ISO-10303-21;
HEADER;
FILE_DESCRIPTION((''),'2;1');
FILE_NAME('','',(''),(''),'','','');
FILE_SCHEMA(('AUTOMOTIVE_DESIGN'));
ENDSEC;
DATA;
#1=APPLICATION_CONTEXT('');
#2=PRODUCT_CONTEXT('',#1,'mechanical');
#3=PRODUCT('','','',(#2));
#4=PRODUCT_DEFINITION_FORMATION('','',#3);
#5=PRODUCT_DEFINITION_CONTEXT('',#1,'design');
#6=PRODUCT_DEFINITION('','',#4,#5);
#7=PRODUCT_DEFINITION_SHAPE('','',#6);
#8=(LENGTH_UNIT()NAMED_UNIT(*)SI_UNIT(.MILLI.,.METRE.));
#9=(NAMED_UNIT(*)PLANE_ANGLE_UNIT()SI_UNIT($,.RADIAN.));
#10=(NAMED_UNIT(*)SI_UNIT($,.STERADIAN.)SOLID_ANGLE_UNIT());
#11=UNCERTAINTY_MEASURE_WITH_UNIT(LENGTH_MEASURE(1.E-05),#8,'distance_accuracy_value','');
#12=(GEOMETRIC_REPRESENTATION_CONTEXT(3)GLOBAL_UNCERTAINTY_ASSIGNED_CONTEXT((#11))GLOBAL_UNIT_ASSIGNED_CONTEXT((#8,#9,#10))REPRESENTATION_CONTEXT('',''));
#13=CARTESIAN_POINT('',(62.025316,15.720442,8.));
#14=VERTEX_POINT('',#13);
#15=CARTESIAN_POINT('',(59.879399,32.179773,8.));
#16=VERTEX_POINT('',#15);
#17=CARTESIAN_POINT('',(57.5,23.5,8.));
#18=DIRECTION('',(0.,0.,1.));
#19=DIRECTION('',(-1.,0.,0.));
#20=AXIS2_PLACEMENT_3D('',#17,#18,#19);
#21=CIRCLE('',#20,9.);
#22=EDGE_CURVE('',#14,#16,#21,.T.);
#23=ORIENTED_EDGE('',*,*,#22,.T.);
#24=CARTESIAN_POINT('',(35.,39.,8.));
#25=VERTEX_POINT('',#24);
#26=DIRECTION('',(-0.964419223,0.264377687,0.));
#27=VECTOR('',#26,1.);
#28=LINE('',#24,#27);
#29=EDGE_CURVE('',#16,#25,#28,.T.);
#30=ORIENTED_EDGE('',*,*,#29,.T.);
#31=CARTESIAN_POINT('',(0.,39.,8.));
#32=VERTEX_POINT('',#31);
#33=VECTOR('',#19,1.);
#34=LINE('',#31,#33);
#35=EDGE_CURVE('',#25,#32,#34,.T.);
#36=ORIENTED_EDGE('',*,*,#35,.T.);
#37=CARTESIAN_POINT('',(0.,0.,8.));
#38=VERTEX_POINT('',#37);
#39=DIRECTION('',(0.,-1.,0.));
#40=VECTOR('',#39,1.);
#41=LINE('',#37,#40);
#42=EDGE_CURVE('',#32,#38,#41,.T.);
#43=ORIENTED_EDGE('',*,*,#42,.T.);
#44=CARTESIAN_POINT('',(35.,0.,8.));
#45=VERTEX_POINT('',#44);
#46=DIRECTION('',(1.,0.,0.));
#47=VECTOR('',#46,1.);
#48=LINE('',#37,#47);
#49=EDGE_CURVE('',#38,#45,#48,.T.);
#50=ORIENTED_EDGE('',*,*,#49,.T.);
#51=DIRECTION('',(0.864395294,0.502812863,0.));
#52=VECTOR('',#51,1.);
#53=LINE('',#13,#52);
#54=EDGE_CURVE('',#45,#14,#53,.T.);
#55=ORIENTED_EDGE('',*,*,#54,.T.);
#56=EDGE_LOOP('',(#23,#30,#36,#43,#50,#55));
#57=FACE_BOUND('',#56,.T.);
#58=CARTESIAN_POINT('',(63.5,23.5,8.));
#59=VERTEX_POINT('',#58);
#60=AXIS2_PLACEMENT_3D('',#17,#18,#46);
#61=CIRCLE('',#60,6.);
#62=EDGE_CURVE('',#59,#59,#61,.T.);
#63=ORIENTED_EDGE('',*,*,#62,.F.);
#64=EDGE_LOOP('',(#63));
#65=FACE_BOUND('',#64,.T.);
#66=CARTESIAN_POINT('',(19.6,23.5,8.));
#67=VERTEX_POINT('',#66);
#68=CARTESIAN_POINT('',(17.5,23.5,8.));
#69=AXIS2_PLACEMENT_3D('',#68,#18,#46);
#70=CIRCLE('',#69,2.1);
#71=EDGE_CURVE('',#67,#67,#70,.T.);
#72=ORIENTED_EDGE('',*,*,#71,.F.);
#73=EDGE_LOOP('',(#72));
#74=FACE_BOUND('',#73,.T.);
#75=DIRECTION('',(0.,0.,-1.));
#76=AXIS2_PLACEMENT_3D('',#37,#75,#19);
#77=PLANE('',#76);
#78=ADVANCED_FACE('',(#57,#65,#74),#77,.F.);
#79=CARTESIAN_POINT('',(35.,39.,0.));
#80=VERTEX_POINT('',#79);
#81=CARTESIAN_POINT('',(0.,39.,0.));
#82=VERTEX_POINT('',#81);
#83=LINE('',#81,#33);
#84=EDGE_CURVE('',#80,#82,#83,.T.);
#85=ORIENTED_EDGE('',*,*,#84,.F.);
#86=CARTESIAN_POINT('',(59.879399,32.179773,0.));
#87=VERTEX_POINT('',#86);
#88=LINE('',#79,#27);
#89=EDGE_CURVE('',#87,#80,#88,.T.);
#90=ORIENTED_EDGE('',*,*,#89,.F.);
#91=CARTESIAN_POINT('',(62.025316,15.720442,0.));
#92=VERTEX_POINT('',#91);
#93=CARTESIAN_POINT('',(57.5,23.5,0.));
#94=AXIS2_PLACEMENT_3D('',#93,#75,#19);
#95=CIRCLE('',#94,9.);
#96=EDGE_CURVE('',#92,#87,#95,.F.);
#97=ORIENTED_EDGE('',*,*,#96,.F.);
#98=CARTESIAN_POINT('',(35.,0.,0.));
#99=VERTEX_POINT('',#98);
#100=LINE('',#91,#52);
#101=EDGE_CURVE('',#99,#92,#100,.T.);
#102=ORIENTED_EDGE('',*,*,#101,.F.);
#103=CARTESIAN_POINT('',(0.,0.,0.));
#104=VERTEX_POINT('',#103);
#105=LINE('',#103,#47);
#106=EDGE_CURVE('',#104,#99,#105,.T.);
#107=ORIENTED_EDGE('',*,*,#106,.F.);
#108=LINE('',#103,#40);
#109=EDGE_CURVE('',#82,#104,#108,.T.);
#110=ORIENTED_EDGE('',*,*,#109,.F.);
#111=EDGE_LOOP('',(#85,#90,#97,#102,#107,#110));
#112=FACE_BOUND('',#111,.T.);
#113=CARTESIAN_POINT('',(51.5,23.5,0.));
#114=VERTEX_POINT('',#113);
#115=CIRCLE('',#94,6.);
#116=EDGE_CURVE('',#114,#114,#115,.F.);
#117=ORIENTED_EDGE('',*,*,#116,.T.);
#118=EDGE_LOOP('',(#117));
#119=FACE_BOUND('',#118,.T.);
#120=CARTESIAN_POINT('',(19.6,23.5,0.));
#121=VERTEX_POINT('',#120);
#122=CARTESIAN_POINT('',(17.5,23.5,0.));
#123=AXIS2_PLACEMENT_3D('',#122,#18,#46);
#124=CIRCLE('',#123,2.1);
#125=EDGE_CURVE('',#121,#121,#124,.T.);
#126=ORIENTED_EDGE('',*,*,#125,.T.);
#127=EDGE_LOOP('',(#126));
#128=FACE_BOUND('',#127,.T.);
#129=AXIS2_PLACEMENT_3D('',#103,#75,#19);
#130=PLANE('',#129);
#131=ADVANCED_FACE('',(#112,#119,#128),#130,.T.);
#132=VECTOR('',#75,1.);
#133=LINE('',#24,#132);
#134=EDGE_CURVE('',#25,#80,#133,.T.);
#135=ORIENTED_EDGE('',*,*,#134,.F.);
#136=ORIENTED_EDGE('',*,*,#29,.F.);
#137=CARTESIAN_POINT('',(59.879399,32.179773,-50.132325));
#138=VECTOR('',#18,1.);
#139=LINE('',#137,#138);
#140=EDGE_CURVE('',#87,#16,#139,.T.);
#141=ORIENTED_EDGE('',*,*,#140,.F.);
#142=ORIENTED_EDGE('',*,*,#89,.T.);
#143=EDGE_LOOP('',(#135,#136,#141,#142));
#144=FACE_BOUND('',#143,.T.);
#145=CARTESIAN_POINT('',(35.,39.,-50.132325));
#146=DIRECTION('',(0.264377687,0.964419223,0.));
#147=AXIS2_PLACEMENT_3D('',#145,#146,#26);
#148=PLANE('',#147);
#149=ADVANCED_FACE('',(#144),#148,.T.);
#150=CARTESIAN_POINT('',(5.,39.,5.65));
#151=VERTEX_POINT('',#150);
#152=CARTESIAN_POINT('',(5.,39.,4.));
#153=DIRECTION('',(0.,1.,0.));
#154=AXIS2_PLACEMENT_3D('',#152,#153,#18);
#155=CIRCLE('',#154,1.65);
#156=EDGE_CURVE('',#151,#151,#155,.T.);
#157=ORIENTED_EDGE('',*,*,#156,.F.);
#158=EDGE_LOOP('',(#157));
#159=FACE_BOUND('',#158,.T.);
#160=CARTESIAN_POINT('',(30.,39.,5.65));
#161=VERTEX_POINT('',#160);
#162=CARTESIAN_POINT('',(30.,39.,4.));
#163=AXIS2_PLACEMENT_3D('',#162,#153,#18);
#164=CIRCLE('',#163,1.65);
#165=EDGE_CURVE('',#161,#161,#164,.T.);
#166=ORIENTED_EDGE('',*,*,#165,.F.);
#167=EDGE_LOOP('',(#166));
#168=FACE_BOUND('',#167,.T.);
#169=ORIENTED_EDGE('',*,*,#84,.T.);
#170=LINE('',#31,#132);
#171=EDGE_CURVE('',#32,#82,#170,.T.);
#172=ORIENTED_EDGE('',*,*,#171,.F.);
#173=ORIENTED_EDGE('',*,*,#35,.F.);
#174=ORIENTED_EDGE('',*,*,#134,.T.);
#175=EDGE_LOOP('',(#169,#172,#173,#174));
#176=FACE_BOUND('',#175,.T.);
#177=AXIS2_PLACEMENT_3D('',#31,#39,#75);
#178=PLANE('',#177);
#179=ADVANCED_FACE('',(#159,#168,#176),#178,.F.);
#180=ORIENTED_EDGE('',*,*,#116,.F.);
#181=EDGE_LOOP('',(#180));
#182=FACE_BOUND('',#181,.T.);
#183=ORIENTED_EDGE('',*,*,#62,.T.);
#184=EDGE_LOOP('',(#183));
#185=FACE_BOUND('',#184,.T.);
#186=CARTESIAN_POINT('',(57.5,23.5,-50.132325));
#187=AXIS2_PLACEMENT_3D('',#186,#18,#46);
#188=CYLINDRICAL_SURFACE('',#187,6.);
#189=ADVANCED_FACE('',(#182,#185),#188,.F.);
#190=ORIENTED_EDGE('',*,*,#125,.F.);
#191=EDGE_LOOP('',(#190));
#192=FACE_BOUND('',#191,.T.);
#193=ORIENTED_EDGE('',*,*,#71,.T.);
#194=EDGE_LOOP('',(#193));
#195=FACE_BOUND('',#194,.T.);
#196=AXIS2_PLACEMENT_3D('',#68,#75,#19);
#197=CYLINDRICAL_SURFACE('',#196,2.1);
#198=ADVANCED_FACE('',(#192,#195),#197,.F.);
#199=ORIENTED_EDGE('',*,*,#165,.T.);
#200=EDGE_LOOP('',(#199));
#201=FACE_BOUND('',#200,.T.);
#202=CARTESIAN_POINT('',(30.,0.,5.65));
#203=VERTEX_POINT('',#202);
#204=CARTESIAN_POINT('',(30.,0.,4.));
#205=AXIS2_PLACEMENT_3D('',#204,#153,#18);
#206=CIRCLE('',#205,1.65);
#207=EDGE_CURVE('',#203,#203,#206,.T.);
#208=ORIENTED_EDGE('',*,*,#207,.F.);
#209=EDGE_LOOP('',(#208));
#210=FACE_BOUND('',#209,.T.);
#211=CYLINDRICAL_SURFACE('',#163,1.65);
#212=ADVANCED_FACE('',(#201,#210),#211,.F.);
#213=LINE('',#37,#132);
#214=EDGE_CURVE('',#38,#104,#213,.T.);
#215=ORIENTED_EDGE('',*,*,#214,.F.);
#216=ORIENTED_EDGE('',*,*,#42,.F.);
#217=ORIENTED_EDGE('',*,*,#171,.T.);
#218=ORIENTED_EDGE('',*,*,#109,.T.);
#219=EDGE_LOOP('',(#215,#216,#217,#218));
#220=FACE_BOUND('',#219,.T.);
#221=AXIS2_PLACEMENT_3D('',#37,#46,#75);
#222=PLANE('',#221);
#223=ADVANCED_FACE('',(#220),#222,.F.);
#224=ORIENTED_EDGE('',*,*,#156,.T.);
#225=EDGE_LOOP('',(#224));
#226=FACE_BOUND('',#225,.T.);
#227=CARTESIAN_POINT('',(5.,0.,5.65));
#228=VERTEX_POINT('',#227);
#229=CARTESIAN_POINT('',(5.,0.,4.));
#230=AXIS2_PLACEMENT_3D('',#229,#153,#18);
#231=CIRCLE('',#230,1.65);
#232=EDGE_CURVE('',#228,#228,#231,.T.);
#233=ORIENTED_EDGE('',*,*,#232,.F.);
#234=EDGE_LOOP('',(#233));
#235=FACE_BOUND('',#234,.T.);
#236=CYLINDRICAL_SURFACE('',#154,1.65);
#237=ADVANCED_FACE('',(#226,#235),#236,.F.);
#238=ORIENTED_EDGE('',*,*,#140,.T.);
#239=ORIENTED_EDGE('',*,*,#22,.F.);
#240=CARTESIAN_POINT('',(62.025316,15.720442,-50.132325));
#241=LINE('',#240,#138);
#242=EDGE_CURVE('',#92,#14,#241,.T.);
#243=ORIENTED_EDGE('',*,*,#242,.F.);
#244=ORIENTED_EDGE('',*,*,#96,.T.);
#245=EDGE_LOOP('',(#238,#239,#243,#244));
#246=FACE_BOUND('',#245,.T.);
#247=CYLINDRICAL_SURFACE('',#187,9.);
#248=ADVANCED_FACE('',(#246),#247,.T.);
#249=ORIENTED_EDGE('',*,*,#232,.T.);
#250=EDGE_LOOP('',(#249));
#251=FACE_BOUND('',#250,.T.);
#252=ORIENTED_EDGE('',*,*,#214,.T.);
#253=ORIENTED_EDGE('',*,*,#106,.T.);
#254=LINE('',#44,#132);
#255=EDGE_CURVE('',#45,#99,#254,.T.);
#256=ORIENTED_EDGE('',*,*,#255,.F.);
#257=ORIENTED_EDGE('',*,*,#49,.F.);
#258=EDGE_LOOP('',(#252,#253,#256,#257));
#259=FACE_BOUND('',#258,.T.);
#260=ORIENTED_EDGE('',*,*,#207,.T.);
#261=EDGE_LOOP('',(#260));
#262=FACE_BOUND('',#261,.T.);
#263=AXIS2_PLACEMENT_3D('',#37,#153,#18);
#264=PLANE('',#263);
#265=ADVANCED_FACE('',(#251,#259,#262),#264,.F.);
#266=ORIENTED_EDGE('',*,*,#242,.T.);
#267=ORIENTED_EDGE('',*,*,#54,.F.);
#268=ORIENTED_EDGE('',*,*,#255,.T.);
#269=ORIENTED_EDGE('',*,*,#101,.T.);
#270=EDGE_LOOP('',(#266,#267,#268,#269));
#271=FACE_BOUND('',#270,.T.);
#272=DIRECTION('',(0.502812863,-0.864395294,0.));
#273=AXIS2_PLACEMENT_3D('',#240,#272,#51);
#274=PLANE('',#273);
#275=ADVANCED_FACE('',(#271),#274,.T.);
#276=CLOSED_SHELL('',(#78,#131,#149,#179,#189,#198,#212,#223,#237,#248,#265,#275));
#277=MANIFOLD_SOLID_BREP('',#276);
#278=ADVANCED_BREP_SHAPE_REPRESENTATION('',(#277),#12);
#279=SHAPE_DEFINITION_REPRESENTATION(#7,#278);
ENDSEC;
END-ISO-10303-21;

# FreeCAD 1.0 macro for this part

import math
import FreeCAD as App
import Part
import Sketcher

V = App.Vector

doc = App.newDocument("Part")
params = doc.addObject("Spreadsheet::Sheet", "Params")
for row, (alias, value) in enumerate([
    ("sketch1_diameter", "4.2 mm"),
    ("sketch1_width", "35 mm"),
    ("sketch1_height", "39 mm"),
    ("pad1_length", "8 mm"),
    ("sketch2_diameter", "3.2 mm"),
    ("sketch3_diameter", "12 mm"),
    ("sketch3_radius", "9 mm"),
    ("sketch3_height", "39 mm"),
    ("pad2_length", "8 mm"),
    ("sketch4_diameter", "3.3 mm"),
    ("hole_diameter", "3.3 mm"),
], start=1):
    params.set(f"A{row}", alias)
    params.set(f"B{row}", "=" + value)
    params.setAlias(f"B{row}", alias)

body = doc.addObject("PartDesign::Body", "Body")

# Sketch on XY plane
sketch1 = doc.addObject("Sketcher::SketchObject", "Sketch")
body.addObject(sketch1)
sketch1.AttachmentSupport = (doc.XY_Plane, [""])
sketch1.MapMode = "FlatFace"
sketch1.addGeometry([
    Part.LineSegment(V(0, 39, 0), V(0, 0, 0)),  # 0
    Part.LineSegment(V(0, 0, 0), V(35, 0, 0)),  # 1
    Part.LineSegment(V(35, 0, 0), V(35, 39, 0)),  # 2
    Part.LineSegment(V(35, 39, 0), V(0, 39, 0)),  # 3
    Part.Circle(V(17.5, 23.5, 0), V(0, 0, 1), 2.1),  # 4
], False)
sketch1.addConstraint([
    Sketcher.Constraint("Coincident", 0, 2, 1, 1),
    Sketcher.Constraint("Coincident", 1, 2, 2, 1),
    Sketcher.Constraint("Coincident", 2, 2, 3, 1),
    Sketcher.Constraint("Coincident", 3, 2, 0, 1),
    Sketcher.Constraint("Vertical", 0),
    Sketcher.Constraint("Horizontal", 1),
    Sketcher.Constraint("Vertical", 2),
    Sketcher.Constraint("Horizontal", 3),
    Sketcher.Constraint("Coincident", 0, 2, -1, 1),
    Sketcher.Constraint("Diameter", 4, 4.2),
    Sketcher.Constraint("DistanceX", 1, 1, 1, 2, 35.0),
    Sketcher.Constraint("DistanceY", 0, 2, 0, 1, 39.0),
    Sketcher.Constraint("DistanceX", -1, 1, 4, 3, 17.5),
    Sketcher.Constraint("DistanceY", -1, 1, 4, 3, 23.5),
])
sketch1.setExpression("Constraints[9]", "Params.sketch1_diameter")
sketch1.setExpression("Constraints[10]", "Params.sketch1_width")
sketch1.setExpression("Constraints[11]", "Params.sketch1_height")
pad1 = doc.addObject("PartDesign::Pad", "Pad")
body.addObject(pad1)
pad1.Profile = sketch1
pad1.setExpression("Length", "Params.pad1_length")

# Sketch on XZ plane
sketch2 = doc.addObject("Sketcher::SketchObject", "Sketch001")
body.addObject(sketch2)
sketch2.AttachmentSupport = (doc.XZ_Plane, [""])
sketch2.MapMode = "FlatFace"
sketch2.AttachmentOffset = App.Placement(V(0, 0, -39), App.Rotation())
sketch2.addGeometry([
    Part.Circle(V(5, 4, 0), V(0, 0, 1), 1.6),
    Part.Circle(V(30, 4, 0), V(0, 0, 1), 1.6),
], False)
sketch2.addConstraint([
    Sketcher.Constraint("Equal", 0, 1),
    Sketcher.Constraint("Horizontal", 0, 3, 1, 3),
    Sketcher.Constraint("Diameter", 0, 3.2),
    Sketcher.Constraint("DistanceX", -1, 1, 0, 3, 5.0),
    Sketcher.Constraint("DistanceY", -1, 1, 0, 3, 4.0),
    Sketcher.Constraint("DistanceX", -1, 1, 1, 3, 30.0),
])
sketch2.setExpression("Constraints[2]", "Params.sketch2_diameter")
pocket1 = doc.addObject("PartDesign::Pocket", "Pocket")
body.addObject(pocket1)
pocket1.Profile = sketch2
pocket1.Type = "ThroughAll"
pocket1.Reversed = True

# Sketch on XY plane
sketch3 = doc.addObject("Sketcher::SketchObject", "Sketch002")
body.addObject(sketch3)
sketch3.AttachmentSupport = (doc.XY_Plane, [""])
sketch3.MapMode = "FlatFace"
sketch3.AttachmentOffset = App.Placement(V(0, 0, 8), App.Rotation())
sketch3.addGeometry([
    Part.LineSegment(V(60, 32, 0), V(35, 39, 0)),  # 0
    Part.LineSegment(V(35, 39, 0), V(35, 0, 0)),  # 1
    Part.LineSegment(V(35, 0, 0), V(62, 16, 0)),  # 2
    Part.ArcOfCircle(Part.Circle(V(58, 24, 0), V(0, 0, 1), 9), math.radians(-60), math.radians(75)),  # 3
    Part.Circle(V(58, 24, 0), V(0, 0, 1), 6),  # 4
], False)
sketch3.addConstraint([
    Sketcher.Constraint("Coincident", 0, 2, 1, 1),
    Sketcher.Constraint("Coincident", 1, 2, 2, 1),
    Sketcher.Constraint("Tangent", 2, 2, 3, 1),
    Sketcher.Constraint("Tangent", 3, 2, 0, 1),
    Sketcher.Constraint("Vertical", 1),
    Sketcher.Constraint("Coincident", 4, 3, 3, 3),
    Sketcher.Constraint("PointOnObject", 1, 2, -1),
    Sketcher.Constraint("Diameter", 4, 12.0),
    Sketcher.Constraint("Radius", 3, 9.0),
    Sketcher.Constraint("DistanceY", 1, 2, 1, 1, 39.0),
    Sketcher.Constraint("DistanceX", -1, 1, 0, 2, 35.0),
    Sketcher.Constraint("DistanceX", -1, 1, 3, 3, 57.5),
    Sketcher.Constraint("DistanceY", -1, 1, 3, 3, 23.5),
])
sketch3.setExpression("Constraints[7]", "Params.sketch3_diameter")
sketch3.setExpression("Constraints[8]", "Params.sketch3_radius")
sketch3.setExpression("Constraints[9]", "Params.sketch3_height")
pad2 = doc.addObject("PartDesign::Pad", "Pad001")
body.addObject(pad2)
pad2.Profile = sketch3
pad2.setExpression("Length", "Params.pad2_length")
pad2.Reversed = True

# Sketch on XZ plane
sketch4 = doc.addObject("Sketcher::SketchObject", "Sketch003")
body.addObject(sketch4)
sketch4.AttachmentSupport = (doc.XZ_Plane, [""])
sketch4.MapMode = "FlatFace"
sketch4.AttachmentOffset = App.Placement(V(0, 0, -39), App.Rotation())
sketch4.addGeometry([
    Part.Circle(V(5, 4, 0), V(0, 0, 1), 1.6),
    Part.Circle(V(30, 4, 0), V(0, 0, 1), 1.6),
], False)
sketch4.addConstraint([
    Sketcher.Constraint("Equal", 0, 1),
    Sketcher.Constraint("Horizontal", 0, 3, 1, 3),
    Sketcher.Constraint("Diameter", 0, 3.3),
    Sketcher.Constraint("DistanceX", -1, 1, 0, 3, 5.0),
    Sketcher.Constraint("DistanceY", -1, 1, 0, 3, 4.0),
    Sketcher.Constraint("DistanceX", -1, 1, 1, 3, 30.0),
])
sketch4.setExpression("Constraints[2]", "Params.sketch4_diameter")
doc.recompute()
hole = doc.addObject("PartDesign::Hole", "Hole")
body.addObject(hole)
hole.Profile = sketch4
hole.ThreadType = "None"
hole.setExpression("Diameter", "Params.hole_diameter")
hole.DepthType = "ThroughAll"
hole.Reversed = True

doc.recompute()
